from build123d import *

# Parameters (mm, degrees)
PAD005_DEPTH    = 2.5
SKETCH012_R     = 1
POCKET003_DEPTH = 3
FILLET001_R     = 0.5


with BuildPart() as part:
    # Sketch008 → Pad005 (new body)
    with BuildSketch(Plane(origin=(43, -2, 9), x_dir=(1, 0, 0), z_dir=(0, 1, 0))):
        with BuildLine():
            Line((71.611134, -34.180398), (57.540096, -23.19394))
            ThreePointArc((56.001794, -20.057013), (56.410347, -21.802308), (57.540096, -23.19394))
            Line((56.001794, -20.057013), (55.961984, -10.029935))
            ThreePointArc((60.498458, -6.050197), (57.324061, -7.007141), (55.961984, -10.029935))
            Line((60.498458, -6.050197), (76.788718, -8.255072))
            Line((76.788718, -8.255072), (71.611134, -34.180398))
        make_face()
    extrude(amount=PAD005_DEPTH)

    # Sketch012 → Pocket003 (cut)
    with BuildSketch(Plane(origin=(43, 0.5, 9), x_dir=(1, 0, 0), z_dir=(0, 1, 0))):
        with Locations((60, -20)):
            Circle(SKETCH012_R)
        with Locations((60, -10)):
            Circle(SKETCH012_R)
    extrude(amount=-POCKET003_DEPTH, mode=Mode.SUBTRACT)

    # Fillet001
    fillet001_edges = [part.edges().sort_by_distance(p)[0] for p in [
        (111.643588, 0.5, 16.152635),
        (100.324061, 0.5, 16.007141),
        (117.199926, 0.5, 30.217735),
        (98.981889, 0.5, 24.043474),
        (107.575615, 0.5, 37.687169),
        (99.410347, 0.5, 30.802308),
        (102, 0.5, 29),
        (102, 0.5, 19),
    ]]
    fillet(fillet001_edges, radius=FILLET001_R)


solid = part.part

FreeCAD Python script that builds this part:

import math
import FreeCAD as App
import Part
import Sketcher


def edges_at(feature, points):
    """Names of the edges that pass closest to the given points."""
    edges = feature.Shape.Edges
    near = lambda p: min(range(len(edges)), key=lambda i: edges[i].distToShape(Part.Vertex(*p))[0])
    return sorted({f"Edge{near(p) + 1}" for p in points})

doc = App.newDocument("Part")
body = doc.addObject("PartDesign::Body", "Body")

# Sketch on XZ plane
sketch1 = body.newObject("Sketcher::SketchObject", "Sketch")
sketch1.AttachmentSupport = (doc.getObject("XZ_Plane"), [""])
sketch1.MapMode = "FlatFace"
sketch1.AttachmentOffset = App.Placement(App.Vector(0, 0, 2), App.Rotation())
sketch1.addGeometry(Part.LineSegment(App.Vector(100.540096, 32.19394, 0), App.Vector(114.611134, 43.180398, 0)), False)
sketch1.addGeometry(Part.LineSegment(App.Vector(114.611134, 43.180398, 0), App.Vector(119.788718, 17.255072, 0)), False)
sketch1.addGeometry(Part.LineSegment(App.Vector(119.788718, 17.255072, 0), App.Vector(103.498458, 15.050197, 0)), False)
sketch1.addGeometry(Part.ArcOfCircle(Part.Circle(App.Vector(102.961953, 19.014055, 0), App.Vector(0, 0, 1), 4.000001), math.radians(179.772532), math.radians(277.708093)), False)
sketch1.addGeometry(Part.LineSegment(App.Vector(98.961984, 19.029935, 0), App.Vector(99.001794, 29.057013, 0)), False)
sketch1.addGeometry(Part.ArcOfCircle(Part.Circle(App.Vector(103.001756, 29.041135, 0), App.Vector(0, 0, 1), 3.999993), math.radians(127.982152), math.radians(179.772567)), False)
sketch1.addConstraint(Sketcher.Constraint("Coincident", 0, 2, 1, 1))
sketch1.addConstraint(Sketcher.Constraint("Coincident", 1, 2, 2, 1))
sketch1.addConstraint(Sketcher.Constraint("Coincident", 2, 2, 3, 2))
sketch1.addConstraint(Sketcher.Constraint("Coincident", 3, 1, 4, 1))
sketch1.addConstraint(Sketcher.Constraint("Coincident", 4, 2, 5, 2))
sketch1.addConstraint(Sketcher.Constraint("Coincident", 5, 1, 0, 1))
sketch1.addConstraint(Sketcher.Constraint("Radius", 3, 4.000001))
sketch1.addConstraint(Sketcher.Constraint("Radius", 5, 3.999993))
sketch1.addConstraint(Sketcher.Constraint("DistanceY", 2, 2, 0, 2, 28.130201))
sketch1.addConstraint(Sketcher.Constraint("DistanceY", 3, 1, 5, 3, 10.0112))
sketch1.addConstraint(Sketcher.Constraint("DistanceX", 4, 2, 5, 1, 1.538302))
sketch1.addConstraint(Sketcher.Constraint("Distance", 0, 17.852069))
sketch1.addConstraint(Sketcher.Constraint("DistanceX", -1, 1, 1, 2, 119.788718))
sketch1.addConstraint(Sketcher.Constraint("DistanceY", -1, 1, 1, 2, 17.255072))
sketch1.addConstraint(Sketcher.Constraint("DistanceX", -1, 1, 2, 2, 103.498458))
sketch1.addConstraint(Sketcher.Constraint("DistanceY", -1, 1, 5, 1, 32.19394))
sketch1.addConstraint(Sketcher.Constraint("DistanceY", 3, 3, 5, 3, 10.02708))
sketch1.addConstraint(Sketcher.Constraint("DistanceX", 5, 3, 0, 2, 11.609378))
sketch1.addConstraint(Sketcher.Constraint("DistanceX", 3, 3, 0, 2, 11.649181))
sketch1.addConstraint(Sketcher.Constraint("DistanceY", 2, 2, 5, 3, 13.990938))
pad1 = body.newObject("PartDesign::Pad", "Pad")
pad1.Profile = sketch1
pad1.Length = 2.5
pad1.Reversed = True

# Sketch on XZ plane
sketch2 = body.newObject("Sketcher::SketchObject", "Sketch001")
sketch2.AttachmentSupport = (doc.getObject("XZ_Plane"), [""])
sketch2.MapMode = "FlatFace"
sketch2.AttachmentOffset = App.Placement(App.Vector(0, 0, -0.5), App.Rotation())
sketch2.addGeometry(Part.Circle(App.Vector(103, 29, 0), App.Vector(0, 0, 1), 1), False)
sketch2.addGeometry(Part.Circle(App.Vector(103, 19, 0), App.Vector(0, 0, 1), 1), False)
sketch2.addConstraint(Sketcher.Constraint("Equal", 0, 1))
sketch2.addConstraint(Sketcher.Constraint("Vertical", 0, 3, 1, 3))
sketch2.addConstraint(Sketcher.Constraint("Diameter", 0, 2.0))
sketch2.addConstraint(Sketcher.Constraint("DistanceX", -1, 1, 0, 3, 103.0))
sketch2.addConstraint(Sketcher.Constraint("DistanceY", -1, 1, 0, 3, 29.0))
sketch2.addConstraint(Sketcher.Constraint("DistanceY", -1, 1, 1, 3, 19.0))
pocket1 = body.newObject("PartDesign::Pocket", "Pocket")
pocket1.Profile = sketch2
pocket1.Length = 3
pocket1.Reversed = True
doc.recompute()

fillet = body.newObject("PartDesign::Fillet", "Fillet")
fillet.Base = (pocket1, edges_at(pocket1, [
    (111.644, 0.5, 16.153),
    (100.324, 0.5, 16.007),
    (117.2, 0.5, 30.218),
    (98.982, 0.5, 24.043),
    (107.576, 0.5, 37.687),
    (99.41, 0.5, 30.802),
    (102, 0.5, 29),
    (102, 0.5, 19),
]))
fillet.Radius = 0.5

doc.recompute()
